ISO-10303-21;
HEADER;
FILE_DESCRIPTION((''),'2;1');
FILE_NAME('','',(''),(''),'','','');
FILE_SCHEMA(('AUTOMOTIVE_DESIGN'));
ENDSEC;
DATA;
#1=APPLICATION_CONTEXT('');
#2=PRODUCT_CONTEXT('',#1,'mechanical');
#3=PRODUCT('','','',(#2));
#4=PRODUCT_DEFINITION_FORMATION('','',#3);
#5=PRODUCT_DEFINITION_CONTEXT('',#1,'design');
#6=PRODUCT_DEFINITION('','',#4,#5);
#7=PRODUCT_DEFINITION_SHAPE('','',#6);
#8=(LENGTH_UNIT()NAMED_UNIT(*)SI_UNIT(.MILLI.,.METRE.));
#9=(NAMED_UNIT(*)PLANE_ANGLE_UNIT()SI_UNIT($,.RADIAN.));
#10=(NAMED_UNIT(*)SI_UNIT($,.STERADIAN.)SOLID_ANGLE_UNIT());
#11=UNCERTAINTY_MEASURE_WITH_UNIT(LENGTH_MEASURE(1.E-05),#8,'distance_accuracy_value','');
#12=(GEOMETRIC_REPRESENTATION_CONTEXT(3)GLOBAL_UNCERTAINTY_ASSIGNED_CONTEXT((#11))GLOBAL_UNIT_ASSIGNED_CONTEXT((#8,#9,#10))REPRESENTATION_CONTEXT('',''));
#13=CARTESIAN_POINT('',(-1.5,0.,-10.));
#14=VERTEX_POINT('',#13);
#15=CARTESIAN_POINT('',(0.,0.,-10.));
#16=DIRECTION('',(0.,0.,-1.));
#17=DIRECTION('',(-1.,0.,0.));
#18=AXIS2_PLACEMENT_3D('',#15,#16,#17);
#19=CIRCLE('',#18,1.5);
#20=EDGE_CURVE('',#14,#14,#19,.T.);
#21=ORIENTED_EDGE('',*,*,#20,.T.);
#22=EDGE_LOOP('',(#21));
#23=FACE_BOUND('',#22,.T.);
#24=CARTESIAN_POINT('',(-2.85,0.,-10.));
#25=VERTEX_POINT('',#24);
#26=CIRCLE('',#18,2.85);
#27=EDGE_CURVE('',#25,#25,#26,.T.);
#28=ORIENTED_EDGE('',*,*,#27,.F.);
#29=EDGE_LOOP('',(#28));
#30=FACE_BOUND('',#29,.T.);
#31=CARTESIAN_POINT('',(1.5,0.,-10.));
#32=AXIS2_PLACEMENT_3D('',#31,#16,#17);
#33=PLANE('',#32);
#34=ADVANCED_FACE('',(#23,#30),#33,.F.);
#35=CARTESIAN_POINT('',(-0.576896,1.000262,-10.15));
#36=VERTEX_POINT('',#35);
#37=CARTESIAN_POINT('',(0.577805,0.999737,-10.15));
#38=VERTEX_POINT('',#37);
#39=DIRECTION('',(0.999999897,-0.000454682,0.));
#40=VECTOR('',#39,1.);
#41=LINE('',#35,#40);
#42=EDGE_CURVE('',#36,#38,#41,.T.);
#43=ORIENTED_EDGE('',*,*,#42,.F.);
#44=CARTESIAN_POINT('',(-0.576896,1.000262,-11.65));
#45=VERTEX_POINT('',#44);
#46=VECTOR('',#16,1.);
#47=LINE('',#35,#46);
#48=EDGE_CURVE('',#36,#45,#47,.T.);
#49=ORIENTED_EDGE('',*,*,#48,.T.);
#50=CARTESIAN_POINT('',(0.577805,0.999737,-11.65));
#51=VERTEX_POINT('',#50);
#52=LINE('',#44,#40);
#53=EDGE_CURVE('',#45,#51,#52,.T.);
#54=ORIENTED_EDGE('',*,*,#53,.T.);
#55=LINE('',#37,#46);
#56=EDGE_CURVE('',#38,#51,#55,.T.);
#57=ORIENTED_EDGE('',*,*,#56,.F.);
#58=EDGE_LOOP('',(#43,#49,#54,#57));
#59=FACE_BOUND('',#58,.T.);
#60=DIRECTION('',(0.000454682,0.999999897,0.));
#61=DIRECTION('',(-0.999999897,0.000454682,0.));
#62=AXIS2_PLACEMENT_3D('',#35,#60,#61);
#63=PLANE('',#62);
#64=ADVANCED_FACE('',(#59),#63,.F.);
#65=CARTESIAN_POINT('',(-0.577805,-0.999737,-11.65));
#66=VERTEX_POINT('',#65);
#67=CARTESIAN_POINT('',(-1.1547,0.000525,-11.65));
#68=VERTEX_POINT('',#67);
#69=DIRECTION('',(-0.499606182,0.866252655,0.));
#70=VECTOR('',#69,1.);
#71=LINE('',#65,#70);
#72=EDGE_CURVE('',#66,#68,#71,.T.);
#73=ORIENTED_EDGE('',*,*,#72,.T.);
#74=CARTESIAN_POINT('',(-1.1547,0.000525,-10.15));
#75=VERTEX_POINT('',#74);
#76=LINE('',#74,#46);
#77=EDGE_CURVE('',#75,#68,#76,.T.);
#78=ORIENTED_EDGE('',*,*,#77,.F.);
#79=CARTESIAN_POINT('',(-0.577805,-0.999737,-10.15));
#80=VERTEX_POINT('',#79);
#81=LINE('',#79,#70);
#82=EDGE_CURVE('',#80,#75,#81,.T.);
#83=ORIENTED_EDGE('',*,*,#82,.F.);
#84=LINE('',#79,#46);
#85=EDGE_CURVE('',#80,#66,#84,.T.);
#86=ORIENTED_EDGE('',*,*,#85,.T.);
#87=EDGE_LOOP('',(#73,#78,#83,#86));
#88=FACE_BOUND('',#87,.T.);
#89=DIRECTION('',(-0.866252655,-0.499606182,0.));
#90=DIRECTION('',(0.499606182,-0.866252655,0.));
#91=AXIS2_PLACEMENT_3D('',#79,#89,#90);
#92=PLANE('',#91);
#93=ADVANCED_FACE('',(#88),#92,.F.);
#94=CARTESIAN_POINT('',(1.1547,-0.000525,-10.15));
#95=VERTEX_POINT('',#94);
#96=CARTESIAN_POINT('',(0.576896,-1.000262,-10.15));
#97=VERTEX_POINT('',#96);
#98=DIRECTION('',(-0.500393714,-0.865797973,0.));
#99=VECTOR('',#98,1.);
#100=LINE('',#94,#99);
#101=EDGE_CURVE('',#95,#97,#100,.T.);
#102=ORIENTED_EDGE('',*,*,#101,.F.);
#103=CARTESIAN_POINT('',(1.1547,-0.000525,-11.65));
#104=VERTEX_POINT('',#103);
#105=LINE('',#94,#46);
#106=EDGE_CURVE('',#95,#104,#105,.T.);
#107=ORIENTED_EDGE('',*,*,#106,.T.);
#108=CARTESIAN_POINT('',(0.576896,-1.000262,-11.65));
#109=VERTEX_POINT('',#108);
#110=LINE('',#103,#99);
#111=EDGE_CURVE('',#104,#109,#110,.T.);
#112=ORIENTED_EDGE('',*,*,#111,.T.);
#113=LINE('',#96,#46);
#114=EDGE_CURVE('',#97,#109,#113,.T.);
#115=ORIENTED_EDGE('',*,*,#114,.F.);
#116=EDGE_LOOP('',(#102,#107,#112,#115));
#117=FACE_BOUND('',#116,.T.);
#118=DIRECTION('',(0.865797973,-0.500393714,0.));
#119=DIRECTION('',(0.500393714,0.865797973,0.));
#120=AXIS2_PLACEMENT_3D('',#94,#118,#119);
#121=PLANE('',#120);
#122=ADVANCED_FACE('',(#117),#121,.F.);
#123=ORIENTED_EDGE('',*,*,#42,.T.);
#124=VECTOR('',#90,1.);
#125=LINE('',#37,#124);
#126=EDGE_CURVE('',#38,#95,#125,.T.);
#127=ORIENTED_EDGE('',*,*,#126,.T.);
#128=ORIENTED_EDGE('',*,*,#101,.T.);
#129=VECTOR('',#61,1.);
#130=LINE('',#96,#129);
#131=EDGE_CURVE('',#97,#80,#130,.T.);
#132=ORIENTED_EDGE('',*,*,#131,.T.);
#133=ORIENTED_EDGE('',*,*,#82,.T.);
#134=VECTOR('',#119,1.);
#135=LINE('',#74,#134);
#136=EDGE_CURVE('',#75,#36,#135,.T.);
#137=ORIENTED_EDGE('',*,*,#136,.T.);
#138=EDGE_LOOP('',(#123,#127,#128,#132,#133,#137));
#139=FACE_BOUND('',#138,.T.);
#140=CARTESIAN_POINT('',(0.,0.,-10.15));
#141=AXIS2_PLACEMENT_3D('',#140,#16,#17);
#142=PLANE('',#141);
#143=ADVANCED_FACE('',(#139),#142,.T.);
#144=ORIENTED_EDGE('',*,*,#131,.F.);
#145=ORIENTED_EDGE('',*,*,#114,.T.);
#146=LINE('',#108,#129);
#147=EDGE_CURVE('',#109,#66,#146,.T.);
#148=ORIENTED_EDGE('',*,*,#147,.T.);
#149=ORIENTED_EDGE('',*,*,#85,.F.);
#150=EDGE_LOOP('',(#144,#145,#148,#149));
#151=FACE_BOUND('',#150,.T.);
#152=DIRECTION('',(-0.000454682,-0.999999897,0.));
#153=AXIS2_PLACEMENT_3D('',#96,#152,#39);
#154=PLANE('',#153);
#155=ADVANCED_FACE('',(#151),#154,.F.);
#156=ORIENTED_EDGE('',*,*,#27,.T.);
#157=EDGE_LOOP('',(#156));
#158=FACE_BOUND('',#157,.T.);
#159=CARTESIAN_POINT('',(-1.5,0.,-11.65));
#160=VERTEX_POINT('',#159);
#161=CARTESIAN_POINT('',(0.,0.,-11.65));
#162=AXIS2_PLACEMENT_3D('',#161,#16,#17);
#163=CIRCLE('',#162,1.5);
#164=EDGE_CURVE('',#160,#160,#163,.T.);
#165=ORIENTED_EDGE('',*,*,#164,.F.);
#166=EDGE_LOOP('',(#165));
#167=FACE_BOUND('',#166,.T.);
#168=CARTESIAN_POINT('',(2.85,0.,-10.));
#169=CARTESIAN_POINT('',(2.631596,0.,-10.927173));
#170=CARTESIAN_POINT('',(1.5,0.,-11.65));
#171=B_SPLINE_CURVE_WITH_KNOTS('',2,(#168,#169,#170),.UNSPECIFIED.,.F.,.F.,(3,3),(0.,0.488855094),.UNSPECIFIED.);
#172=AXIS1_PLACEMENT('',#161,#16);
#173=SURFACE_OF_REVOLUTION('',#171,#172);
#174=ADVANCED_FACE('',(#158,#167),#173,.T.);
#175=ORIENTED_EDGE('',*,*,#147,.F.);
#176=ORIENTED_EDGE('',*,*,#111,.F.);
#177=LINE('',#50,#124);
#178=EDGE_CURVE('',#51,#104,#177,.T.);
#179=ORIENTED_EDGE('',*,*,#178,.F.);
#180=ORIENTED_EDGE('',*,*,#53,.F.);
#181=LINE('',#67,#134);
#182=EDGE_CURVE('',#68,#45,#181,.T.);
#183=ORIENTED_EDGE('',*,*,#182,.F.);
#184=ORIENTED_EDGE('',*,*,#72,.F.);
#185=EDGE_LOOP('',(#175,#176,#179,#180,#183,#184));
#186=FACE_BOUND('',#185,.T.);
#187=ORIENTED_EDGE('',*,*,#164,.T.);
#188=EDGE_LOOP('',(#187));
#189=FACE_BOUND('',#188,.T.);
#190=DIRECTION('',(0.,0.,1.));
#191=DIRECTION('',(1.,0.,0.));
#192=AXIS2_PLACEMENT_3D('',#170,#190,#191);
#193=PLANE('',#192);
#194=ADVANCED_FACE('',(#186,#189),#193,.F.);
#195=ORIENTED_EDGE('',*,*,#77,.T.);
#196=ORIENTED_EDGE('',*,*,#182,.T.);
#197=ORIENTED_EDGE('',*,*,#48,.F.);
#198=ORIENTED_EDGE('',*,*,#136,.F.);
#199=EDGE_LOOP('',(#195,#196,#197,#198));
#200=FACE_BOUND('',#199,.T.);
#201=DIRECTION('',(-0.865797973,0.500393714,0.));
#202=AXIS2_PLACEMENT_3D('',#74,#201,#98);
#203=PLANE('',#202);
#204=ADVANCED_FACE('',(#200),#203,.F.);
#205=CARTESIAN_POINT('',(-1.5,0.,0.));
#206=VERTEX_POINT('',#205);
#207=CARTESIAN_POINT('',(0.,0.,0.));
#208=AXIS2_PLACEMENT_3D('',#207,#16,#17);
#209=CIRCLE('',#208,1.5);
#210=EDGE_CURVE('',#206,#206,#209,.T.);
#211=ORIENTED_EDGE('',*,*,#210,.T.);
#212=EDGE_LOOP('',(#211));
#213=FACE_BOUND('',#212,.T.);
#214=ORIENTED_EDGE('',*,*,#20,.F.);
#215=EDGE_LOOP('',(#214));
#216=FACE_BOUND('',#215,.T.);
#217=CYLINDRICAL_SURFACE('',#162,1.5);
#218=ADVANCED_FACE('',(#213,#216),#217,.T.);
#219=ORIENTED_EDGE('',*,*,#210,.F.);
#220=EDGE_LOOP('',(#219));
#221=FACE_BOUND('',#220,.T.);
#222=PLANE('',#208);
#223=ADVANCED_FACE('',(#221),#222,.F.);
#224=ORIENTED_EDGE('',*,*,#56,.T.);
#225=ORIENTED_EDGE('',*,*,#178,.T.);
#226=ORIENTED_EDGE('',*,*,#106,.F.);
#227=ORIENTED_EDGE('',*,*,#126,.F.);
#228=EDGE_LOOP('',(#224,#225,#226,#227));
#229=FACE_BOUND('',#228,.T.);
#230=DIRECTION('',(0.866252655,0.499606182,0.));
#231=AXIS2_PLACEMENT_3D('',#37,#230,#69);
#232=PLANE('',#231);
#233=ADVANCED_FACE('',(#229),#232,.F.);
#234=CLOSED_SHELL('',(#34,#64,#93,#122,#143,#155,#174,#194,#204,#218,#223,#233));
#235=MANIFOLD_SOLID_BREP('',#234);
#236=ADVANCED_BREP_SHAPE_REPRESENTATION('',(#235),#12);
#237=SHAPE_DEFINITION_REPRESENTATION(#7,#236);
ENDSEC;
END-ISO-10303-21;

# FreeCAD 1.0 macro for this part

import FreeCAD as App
import Part
import Sketcher
from FreeCAD import Vector
Q = App.Units.Quantity

doc = App.newDocument("Part")
body = doc.addObject("PartDesign::Body", "Body")

# Sketch on XZ plane
sketch1 = body.newObject("Sketcher::SketchObject", "Sketch")
sketch1.AttachmentSupport = (doc.getObject("XZ_Plane"), [""])
sketch1.MapMode = "FlatFace"
sketch1.addGeometry(Part.LineSegment(Vector(1.5, 0, 0), Vector(1.5, -10, 0)), False)
sketch1.addGeometry(Part.LineSegment(Vector(1.5, -10, 0), Vector(2.85, -10, 0)), False)
sketch1.addGeometry(Part.BSplineCurve([Vector(1.5, -11.65, 0), Vector(2.631596, -10.927173, 0), Vector(2.85, -10, 0)], [3, 3], [0, 0.488855094], False, 2, [1, 1, 1], False), False)
sketch1.addGeometry(Part.LineSegment(Vector(1.5, -11.65, 0), Vector(0, -11.65, 0)), False)
sketch1.addGeometry(Part.LineSegment(Vector(0, -11.65, 0), Vector(0, 0, 0)), False)
sketch1.addGeometry(Part.LineSegment(Vector(0, 0, 0), Vector(1.5, 0, 0)), False)
sketch1.addConstraint(Sketcher.Constraint("Block", 2))
sketch1.addConstraint(Sketcher.Constraint("Coincident", 0, 2, 1, 1))
sketch1.addConstraint(Sketcher.Constraint("Coincident", 1, 2, 2, 2))
sketch1.addConstraint(Sketcher.Constraint("Coincident", 2, 1, 3, 1))
sketch1.addConstraint(Sketcher.Constraint("Coincident", 3, 2, 4, 1))
sketch1.addConstraint(Sketcher.Constraint("Coincident", 4, 2, 5, 1))
sketch1.addConstraint(Sketcher.Constraint("Coincident", 5, 2, 0, 1))
sketch1.addConstraint(Sketcher.Constraint("Vertical", 0))
sketch1.addConstraint(Sketcher.Constraint("Horizontal", 1))
sketch1.addConstraint(Sketcher.Constraint("Horizontal", 3))
sketch1.addConstraint(Sketcher.Constraint("Vertical", 4))
sketch1.addConstraint(Sketcher.Constraint("Horizontal", 5))
sketch1.addConstraint(Sketcher.Constraint("Coincident", 4, 2, -1, 1))
sketch1.addConstraint(Sketcher.Constraint("Equal", 3, 5))
revolution = body.newObject("PartDesign::Revolution", "Revolution")
revolution.Profile = sketch1
revolution.ReferenceAxis = (sketch1, ["V_Axis"])
revolution.Angle = 360

# Sketch on XY plane
sketch2 = body.newObject("Sketcher::SketchObject", "Sketch001")
sketch2.AttachmentSupport = (doc.getObject("XY_Plane"), [""])
sketch2.MapMode = "FlatFace"
sketch2.AttachmentOffset = App.Placement(Vector(0, 0, -11.65), App.Rotation())
sketch2.addGeometry(Part.LineSegment(Vector(-0.576896, 1.000262, 0), Vector(0.577805, 0.999737, 0)), False)
sketch2.addGeometry(Part.LineSegment(Vector(0.577805, 0.999737, 0), Vector(1.1547, -0.000525, 0)), False)
sketch2.addGeometry(Part.LineSegment(Vector(1.1547, -0.000525, 0), Vector(0.576896, -1.000262, 0)), False)
sketch2.addGeometry(Part.LineSegment(Vector(0.576896, -1.000262, 0), Vector(-0.577805, -0.999737, 0)), False)
sketch2.addGeometry(Part.LineSegment(Vector(-0.577805, -0.999737, 0), Vector(-1.1547, 0.000525, 0)), False)
sketch2.addGeometry(Part.LineSegment(Vector(-1.1547, 0.000525, 0), Vector(-0.576896, 1.000262, 0)), False)
sketch2.addConstraint(Sketcher.Constraint("Coincident", 0, 2, 1, 1))
sketch2.addConstraint(Sketcher.Constraint("Coincident", 1, 2, 2, 1))
sketch2.addConstraint(Sketcher.Constraint("Coincident", 2, 2, 3, 1))
sketch2.addConstraint(Sketcher.Constraint("Coincident", 3, 2, 4, 1))
sketch2.addConstraint(Sketcher.Constraint("Coincident", 4, 2, 5, 1))
sketch2.addConstraint(Sketcher.Constraint("Coincident", 5, 2, 0, 1))
sketch2.addConstraint(Sketcher.Constraint("Symmetric", 0, 2, 3, 2, -1, 1))
sketch2.addConstraint(Sketcher.Constraint("Symmetric", 1, 2, 4, 2, -1, 1))
sketch2.addConstraint(Sketcher.Constraint("Symmetric", 2, 2, 5, 2, -1, 1))
sketch2.addConstraint(Sketcher.Constraint("Equal", 0, 1))
sketch2.addConstraint(Sketcher.Constraint("Equal", 1, 2))
sketch2.addConstraint(Sketcher.Constraint("DistanceY", 2, 2, 0, 2, Q("2 mm")))
sketch2.addConstraint(Sketcher.Constraint("Distance", 0, Q("1.154701 mm")))
sketch2.addConstraint(Sketcher.Constraint("DistanceX", 2, 2, 0, 2, Q("0.000909 mm")))
sketch2.addConstraint(Sketcher.Constraint("DistanceY", 1, 2, 4, 2, Q("0.00105 mm")))
pocket1 = body.newObject("PartDesign::Pocket", "Pocket")
pocket1.Profile = sketch2
pocket1.Length = 1.5
pocket1.Reversed = True

doc.recompute()
